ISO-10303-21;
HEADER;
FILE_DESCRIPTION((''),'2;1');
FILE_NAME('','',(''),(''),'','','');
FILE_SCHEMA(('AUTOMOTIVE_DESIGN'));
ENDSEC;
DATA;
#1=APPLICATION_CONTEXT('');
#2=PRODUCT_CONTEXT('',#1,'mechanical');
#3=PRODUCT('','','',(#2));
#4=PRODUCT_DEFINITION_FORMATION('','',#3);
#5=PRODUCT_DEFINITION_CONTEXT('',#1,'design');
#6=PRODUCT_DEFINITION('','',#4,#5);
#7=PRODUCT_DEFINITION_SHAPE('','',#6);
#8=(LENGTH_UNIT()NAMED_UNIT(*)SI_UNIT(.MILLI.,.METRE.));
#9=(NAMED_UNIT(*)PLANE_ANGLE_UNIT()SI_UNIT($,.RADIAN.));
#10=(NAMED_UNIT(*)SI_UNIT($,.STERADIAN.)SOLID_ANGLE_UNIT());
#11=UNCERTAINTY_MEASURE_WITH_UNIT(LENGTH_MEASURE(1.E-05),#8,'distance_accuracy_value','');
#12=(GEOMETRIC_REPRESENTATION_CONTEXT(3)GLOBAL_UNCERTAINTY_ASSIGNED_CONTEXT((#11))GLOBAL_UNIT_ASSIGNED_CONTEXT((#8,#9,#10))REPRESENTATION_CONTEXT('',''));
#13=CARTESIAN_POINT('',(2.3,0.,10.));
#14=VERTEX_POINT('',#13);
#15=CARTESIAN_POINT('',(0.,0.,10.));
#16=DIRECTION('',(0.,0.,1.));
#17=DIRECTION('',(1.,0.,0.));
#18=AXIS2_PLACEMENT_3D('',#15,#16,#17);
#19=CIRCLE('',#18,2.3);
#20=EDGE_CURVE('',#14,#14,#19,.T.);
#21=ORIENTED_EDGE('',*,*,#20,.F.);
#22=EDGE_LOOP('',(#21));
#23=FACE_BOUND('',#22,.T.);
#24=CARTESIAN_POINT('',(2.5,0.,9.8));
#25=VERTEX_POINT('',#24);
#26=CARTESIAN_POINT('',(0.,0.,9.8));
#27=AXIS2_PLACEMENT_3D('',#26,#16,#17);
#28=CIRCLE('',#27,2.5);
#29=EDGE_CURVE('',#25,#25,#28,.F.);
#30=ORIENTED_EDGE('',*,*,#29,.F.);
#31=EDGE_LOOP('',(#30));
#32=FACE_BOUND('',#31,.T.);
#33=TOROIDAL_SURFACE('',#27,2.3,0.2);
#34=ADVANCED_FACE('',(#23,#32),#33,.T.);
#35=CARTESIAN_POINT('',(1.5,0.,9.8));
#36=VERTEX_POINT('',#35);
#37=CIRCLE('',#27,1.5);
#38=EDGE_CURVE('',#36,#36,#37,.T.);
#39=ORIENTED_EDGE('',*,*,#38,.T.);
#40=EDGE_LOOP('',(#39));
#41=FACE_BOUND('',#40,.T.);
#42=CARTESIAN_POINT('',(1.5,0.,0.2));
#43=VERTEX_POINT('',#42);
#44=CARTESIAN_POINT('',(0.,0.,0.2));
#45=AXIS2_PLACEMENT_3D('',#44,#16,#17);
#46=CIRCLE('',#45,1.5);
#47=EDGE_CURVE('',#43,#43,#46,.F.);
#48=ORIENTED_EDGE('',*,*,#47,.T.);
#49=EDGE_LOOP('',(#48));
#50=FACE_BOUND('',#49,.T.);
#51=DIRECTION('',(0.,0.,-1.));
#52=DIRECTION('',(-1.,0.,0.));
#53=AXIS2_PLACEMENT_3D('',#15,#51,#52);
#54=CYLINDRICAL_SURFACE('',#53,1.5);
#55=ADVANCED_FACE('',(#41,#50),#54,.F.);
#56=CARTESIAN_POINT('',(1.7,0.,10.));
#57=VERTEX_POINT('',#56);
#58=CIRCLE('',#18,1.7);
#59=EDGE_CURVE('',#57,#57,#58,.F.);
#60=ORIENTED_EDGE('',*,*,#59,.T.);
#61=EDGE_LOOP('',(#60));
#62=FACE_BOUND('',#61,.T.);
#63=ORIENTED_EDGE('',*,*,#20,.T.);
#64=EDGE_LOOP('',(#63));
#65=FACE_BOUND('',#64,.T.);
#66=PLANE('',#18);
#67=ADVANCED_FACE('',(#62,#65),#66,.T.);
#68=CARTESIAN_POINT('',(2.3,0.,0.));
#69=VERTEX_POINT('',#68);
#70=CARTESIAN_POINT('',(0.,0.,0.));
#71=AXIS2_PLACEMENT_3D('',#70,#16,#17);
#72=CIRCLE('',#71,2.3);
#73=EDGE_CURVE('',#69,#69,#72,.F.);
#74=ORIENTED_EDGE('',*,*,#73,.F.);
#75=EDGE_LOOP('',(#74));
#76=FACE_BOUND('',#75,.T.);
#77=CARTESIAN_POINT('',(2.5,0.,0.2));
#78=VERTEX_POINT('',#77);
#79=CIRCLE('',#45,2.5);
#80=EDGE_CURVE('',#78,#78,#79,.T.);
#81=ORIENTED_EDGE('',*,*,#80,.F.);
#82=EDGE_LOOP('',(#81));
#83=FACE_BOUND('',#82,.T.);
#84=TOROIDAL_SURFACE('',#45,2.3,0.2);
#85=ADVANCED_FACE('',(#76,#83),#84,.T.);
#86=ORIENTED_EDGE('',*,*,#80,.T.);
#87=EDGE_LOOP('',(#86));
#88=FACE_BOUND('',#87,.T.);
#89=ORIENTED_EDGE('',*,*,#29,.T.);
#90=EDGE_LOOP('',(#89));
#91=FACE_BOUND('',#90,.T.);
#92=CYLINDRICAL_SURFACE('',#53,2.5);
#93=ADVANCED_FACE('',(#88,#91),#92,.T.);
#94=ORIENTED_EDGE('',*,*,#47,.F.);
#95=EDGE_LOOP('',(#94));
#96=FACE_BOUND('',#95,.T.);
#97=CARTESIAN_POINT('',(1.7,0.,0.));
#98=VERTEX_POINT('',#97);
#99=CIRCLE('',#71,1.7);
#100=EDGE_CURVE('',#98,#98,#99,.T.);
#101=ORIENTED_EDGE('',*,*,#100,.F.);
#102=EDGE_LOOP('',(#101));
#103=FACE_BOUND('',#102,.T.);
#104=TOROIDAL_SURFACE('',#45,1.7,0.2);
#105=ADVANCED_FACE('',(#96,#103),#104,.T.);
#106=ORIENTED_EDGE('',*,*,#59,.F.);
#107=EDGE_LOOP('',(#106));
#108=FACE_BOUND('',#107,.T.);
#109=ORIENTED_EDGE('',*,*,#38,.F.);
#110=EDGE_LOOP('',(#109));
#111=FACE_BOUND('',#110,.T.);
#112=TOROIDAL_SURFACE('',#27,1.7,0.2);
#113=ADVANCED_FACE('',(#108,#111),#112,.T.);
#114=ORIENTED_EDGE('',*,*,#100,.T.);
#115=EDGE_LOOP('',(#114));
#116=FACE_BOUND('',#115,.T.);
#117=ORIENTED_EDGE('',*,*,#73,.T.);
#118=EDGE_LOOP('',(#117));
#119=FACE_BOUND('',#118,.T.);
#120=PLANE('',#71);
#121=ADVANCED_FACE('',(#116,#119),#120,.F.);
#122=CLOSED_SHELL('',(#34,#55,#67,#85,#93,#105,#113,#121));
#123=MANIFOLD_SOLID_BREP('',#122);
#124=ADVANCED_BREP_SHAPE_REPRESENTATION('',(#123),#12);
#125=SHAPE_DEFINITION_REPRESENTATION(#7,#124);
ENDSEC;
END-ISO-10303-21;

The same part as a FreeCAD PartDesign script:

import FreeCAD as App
import Part
import Sketcher

V = App.Vector
Q = App.Units.Quantity


def edges_at(feature, points):
    """Names of the edges that pass closest to the given points."""
    edges = feature.Shape.Edges
    near = lambda p: min(range(len(edges)), key=lambda i: edges[i].distToShape(Part.Vertex(*p))[0])
    return sorted({f"Edge{near(p) + 1}" for p in points})

doc = App.newDocument("Part")
body = doc.addObject("PartDesign::Body", "Body")

# Sketch on XY plane
sketch1 = doc.addObject("Sketcher::SketchObject", "Sketch")
body.addObject(sketch1)
sketch1.AttachmentSupport = (doc.XY_Plane, [""])
sketch1.MapMode = "FlatFace"
sketch1.addGeometry([
    Part.Circle(V(0, 0, 0), V(0, 0, 1), 2.5),
    Part.Circle(V(0, 0, 0), V(0, 0, 1), 1.5),
], False)
sketch1.addConstraint([
    Sketcher.Constraint("Coincident", 0, 3, -1, 1),
    Sketcher.Constraint("Coincident", 1, 3, -1, 1),
    Sketcher.Constraint("Diameter", 0, Q("5 mm")),
    Sketcher.Constraint("Diameter", 1, Q("3 mm")),
])
pad1 = doc.addObject("PartDesign::Pad", "Pad")
body.addObject(pad1)
pad1.Profile = sketch1
pad1.Length = 10
doc.recompute()

fillet = doc.addObject("PartDesign::Fillet", "Fillet")
body.addObject(fillet)
fillet.Base = (pad1, edges_at(pad1, [
    (-2.5, 0, 0),
    (-2.5, 0, 10),
    (-1.5, 0, 0),
    (-1.5, 0, 10),
]))
fillet.Radius = 0.2

doc.recompute()
